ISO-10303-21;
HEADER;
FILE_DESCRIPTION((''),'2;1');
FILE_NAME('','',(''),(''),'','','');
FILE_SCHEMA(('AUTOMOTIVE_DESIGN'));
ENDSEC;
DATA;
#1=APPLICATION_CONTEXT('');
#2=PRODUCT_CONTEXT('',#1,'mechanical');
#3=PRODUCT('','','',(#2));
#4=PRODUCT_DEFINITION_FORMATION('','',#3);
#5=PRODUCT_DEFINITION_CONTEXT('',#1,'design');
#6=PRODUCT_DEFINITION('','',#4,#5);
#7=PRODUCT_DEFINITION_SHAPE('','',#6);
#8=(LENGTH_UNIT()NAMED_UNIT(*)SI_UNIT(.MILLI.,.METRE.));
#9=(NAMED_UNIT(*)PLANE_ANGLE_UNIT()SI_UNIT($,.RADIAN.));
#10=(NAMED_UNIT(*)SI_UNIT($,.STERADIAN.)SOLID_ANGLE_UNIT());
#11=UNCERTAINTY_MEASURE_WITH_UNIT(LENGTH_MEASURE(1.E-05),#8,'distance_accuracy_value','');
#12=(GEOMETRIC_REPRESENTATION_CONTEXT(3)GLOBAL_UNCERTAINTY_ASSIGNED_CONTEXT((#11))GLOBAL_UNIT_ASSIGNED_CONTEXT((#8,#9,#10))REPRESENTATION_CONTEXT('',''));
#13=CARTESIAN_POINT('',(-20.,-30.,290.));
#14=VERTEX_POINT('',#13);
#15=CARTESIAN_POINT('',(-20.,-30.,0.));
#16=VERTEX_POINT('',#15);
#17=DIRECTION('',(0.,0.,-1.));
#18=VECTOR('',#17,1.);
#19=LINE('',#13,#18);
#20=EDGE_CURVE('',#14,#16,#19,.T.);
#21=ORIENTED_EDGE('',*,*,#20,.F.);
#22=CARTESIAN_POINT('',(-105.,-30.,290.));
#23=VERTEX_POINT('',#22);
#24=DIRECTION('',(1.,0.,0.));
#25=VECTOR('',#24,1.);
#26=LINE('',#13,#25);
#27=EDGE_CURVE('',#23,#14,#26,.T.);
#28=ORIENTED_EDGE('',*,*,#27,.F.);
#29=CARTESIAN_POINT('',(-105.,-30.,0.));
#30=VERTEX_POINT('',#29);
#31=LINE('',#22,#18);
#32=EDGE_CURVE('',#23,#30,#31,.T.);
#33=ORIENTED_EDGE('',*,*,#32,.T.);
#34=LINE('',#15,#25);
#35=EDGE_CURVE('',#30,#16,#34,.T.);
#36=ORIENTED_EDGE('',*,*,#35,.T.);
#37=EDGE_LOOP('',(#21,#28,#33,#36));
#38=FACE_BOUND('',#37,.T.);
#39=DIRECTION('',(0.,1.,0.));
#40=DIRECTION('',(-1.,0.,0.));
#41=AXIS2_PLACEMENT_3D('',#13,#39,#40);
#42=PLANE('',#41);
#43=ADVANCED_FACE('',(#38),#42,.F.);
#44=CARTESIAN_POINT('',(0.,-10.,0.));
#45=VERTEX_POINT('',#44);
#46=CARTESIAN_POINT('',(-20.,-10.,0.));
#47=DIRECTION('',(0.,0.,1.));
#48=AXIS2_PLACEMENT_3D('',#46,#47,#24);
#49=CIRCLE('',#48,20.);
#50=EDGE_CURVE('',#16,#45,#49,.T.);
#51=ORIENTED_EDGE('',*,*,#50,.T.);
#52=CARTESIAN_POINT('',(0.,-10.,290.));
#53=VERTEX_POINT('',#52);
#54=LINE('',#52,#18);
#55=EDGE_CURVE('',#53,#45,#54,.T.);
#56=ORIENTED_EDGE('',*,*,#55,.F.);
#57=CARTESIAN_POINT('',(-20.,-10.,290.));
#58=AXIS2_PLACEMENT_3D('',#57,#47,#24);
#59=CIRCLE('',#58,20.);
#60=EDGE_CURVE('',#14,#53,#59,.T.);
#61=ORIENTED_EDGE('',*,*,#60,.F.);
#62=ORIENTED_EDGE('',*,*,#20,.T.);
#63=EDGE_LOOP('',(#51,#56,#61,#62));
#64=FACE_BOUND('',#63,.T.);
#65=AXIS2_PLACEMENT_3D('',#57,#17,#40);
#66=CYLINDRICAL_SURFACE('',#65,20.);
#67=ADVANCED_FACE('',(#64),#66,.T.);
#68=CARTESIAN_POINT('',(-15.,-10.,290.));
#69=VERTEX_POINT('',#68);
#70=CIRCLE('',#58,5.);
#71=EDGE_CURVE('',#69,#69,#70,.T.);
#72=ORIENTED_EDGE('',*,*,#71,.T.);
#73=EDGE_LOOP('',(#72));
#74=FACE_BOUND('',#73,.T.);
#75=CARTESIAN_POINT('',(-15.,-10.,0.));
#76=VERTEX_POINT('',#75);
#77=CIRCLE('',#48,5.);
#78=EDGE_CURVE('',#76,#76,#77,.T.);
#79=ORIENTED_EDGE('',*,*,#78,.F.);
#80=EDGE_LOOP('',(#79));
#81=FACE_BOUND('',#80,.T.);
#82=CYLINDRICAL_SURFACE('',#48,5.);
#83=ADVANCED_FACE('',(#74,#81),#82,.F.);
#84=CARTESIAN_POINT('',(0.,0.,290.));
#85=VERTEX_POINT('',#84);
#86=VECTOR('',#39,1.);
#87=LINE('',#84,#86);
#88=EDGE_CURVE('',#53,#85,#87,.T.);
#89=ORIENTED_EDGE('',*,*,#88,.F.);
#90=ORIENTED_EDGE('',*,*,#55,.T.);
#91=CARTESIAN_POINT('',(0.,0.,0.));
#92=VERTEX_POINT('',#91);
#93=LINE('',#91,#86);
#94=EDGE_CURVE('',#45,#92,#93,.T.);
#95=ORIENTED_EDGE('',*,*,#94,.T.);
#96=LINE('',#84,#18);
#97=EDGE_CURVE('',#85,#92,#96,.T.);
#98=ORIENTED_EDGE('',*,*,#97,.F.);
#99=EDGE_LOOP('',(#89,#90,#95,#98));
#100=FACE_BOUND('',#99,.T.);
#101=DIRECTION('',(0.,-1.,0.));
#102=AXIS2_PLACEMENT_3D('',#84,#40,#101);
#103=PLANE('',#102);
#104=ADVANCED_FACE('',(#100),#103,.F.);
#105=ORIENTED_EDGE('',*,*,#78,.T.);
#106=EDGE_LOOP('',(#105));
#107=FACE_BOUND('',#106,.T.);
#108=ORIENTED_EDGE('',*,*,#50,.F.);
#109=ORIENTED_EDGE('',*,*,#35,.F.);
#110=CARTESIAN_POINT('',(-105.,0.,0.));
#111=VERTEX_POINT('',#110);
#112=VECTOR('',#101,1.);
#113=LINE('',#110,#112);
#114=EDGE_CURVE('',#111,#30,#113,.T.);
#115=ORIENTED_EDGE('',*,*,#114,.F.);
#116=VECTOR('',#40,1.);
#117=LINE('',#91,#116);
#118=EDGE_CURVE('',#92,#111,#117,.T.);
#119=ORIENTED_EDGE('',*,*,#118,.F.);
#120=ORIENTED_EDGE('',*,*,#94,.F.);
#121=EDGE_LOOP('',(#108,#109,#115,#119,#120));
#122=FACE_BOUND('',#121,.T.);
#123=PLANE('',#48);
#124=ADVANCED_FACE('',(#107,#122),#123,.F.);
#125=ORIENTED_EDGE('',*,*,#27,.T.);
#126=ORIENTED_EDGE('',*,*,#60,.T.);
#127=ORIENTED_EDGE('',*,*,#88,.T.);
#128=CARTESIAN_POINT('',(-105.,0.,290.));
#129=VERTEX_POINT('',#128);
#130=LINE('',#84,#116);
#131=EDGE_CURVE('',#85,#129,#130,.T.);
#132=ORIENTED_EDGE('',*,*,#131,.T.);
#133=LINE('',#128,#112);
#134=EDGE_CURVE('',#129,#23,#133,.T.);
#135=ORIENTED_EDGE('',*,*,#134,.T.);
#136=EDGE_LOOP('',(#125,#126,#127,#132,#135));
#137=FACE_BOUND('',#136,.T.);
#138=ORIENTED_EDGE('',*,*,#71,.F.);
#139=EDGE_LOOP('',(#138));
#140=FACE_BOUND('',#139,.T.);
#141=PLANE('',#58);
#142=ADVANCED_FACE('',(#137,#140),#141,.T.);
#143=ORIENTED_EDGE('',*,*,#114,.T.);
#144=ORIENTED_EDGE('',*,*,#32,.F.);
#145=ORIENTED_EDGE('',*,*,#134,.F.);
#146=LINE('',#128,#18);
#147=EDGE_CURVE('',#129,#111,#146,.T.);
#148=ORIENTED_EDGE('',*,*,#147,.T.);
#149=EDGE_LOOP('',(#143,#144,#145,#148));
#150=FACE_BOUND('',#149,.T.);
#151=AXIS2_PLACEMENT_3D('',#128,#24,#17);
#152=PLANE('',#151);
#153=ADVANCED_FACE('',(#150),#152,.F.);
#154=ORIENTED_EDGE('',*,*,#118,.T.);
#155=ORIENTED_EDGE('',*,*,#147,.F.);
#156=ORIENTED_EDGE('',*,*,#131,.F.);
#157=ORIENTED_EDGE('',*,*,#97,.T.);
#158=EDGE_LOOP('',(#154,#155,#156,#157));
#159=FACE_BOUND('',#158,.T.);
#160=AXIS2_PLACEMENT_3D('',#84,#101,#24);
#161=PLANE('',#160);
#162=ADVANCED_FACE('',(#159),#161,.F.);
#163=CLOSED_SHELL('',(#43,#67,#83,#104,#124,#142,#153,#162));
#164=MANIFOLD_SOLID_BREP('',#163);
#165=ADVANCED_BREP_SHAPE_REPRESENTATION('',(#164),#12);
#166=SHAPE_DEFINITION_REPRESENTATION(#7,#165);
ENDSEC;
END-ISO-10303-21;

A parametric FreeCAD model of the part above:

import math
import FreeCAD as App
import Part
import Sketcher
Q = App.Units.Quantity

doc = App.newDocument("Part")
body = doc.addObject("PartDesign::Body", "Body")

# Sketch on XY plane
sketch1 = body.newObject("Sketcher::SketchObject", "Sketch")
sketch1.AttachmentSupport = (doc.getObject("XY_Plane"), [""])
sketch1.MapMode = "FlatFace"
sketch1.addGeometry([
    Part.LineSegment(App.Vector(0, 0, 0), App.Vector(-105, 0, 0)),  # 0
    Part.LineSegment(App.Vector(-105, 0, 0), App.Vector(-105, -30, 0)),  # 1
    Part.LineSegment(App.Vector(-105, -30, 0), App.Vector(-20, -30, 0)),  # 2
    Part.ArcOfCircle(Part.Circle(App.Vector(-20, -10, 0), App.Vector(0, 0, 1), 20), math.radians(-90), math.radians(0)),  # 3
    Part.LineSegment(App.Vector(0, -10, 0), App.Vector(0, 0, 0)),  # 4
], False)
sketch1.addConstraint([
    Sketcher.Constraint("Coincident", 0, 2, 1, 1),
    Sketcher.Constraint("Coincident", 1, 2, 2, 1),
    Sketcher.Constraint("Tangent", 2, 2, 3, 1),
    Sketcher.Constraint("Tangent", 3, 2, 4, 1),
    Sketcher.Constraint("Coincident", 4, 2, 0, 1),
    Sketcher.Constraint("Horizontal", 0),
    Sketcher.Constraint("Vertical", 1),
    Sketcher.Constraint("Horizontal", 2),
    Sketcher.Constraint("Vertical", 4),
    Sketcher.Constraint("Coincident", 4, 2, -1, 1),
    Sketcher.Constraint("Radius", 3, Q("20 mm")),
    Sketcher.Constraint("DistanceX", 0, 2, 0, 1, Q("105 mm")),
    Sketcher.Constraint("DistanceY", 1, 2, 1, 1, Q("30 mm")),
])
pad1 = body.newObject("PartDesign::Pad", "Pad")
pad1.Profile = sketch1
pad1.Length = 290

# Sketch on XY plane
sketch2 = body.newObject("Sketcher::SketchObject", "Sketch001")
sketch2.AttachmentSupport = (doc.getObject("XY_Plane"), [""])
sketch2.MapMode = "FlatFace"
sketch2.AttachmentOffset = App.Placement(App.Vector(0, 0, 290), App.Rotation())
sketch2.addGeometry(Part.Circle(App.Vector(-20, -10, 0), App.Vector(0, 0, 1), 5), False)
sketch2.addConstraint([
    Sketcher.Constraint("Diameter", 0, Q("10 mm")),
    Sketcher.Constraint("DistanceX", 0, 3, -1, 1, Q("20 mm")),
    Sketcher.Constraint("DistanceY", 0, 3, -1, 1, Q("10 mm")),
])
pocket1 = body.newObject("PartDesign::Pocket", "Pocket")
pocket1.Profile = sketch2
pocket1.Type = "ThroughAll"

doc.recompute()
